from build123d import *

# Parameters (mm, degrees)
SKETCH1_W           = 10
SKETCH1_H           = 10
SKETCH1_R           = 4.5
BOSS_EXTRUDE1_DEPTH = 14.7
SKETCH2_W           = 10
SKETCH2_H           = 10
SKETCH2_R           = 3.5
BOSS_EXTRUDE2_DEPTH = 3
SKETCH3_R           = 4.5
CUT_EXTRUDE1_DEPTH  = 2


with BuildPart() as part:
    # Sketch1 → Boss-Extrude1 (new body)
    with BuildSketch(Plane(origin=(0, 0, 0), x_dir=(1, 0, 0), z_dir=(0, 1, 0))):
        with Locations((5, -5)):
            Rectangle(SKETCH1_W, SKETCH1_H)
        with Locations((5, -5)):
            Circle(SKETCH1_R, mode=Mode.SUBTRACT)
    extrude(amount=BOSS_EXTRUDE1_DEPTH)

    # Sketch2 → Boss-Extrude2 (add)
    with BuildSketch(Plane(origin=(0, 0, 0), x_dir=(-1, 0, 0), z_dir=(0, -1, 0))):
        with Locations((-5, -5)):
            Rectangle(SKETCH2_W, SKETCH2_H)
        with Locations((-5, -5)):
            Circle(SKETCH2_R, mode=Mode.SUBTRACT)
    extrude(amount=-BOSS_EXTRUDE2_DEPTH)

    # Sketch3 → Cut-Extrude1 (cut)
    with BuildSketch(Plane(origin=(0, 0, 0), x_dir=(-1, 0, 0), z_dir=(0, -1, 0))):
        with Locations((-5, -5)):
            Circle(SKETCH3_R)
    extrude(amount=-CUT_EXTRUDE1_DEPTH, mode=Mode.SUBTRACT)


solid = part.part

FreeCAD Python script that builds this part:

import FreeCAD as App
import Part
import Sketcher

V = App.Vector


def add_polygon(sketch, points):
    """Adds a closed chain of lines whose ends are joined by coincident constraints."""
    first, n = sketch.GeometryCount, len(points)
    for a, b in zip(points, points[1:] + points[:1]):
        sketch.addGeometry(Part.LineSegment(App.Vector(*a, 0), App.Vector(*b, 0)), False)
    for i in range(n):
        sketch.addConstraint(Sketcher.Constraint("Coincident", first + i, 2, first + (i + 1) % n, 1))

doc = App.newDocument("Part")
params = doc.addObject("Spreadsheet::Sheet", "Params")
for row, (alias, value) in enumerate([
    ("sketch1_diameter", "9 mm"),
    ("sketch1_width", "10 mm"),
    ("pad1_length", "14.7 mm"),
    ("sketch2_diameter", "7 mm"),
    ("sketch2_width", "10 mm"),
    ("pad2_length", "3 mm"),
    ("sketch3_diameter", "9 mm"),
    ("pocket1_length", "2 mm"),
], start=1):
    params.set(f"A{row}", alias)
    params.set(f"B{row}", "=" + value)
    params.setAlias(f"B{row}", alias)

body = doc.addObject("PartDesign::Body", "Body")

# Sketch on XZ plane
sketch1 = doc.addObject("Sketcher::SketchObject", "Sketch")
body.addObject(sketch1)
sketch1.AttachmentSupport = (doc.XZ_Plane, [""])
sketch1.MapMode = "FlatFace"
add_polygon(sketch1, [(0, 0), (0, 10), (10, 10), (10, 0)])  # lines 0-3
sketch1.addGeometry(Part.Circle(V(5, 5, 0), V(0, 0, 1), 4.5), False)  # 4
sketch1.addConstraint([
    Sketcher.Constraint("Vertical", 0),
    Sketcher.Constraint("Horizontal", 1),
    Sketcher.Constraint("Vertical", 2),
    Sketcher.Constraint("Horizontal", 3),
    Sketcher.Constraint("Coincident", 3, 2, -1, 1),
    Sketcher.Constraint("Equal", 3, 0),
    Sketcher.Constraint("Diameter", 4, 9.0),
    Sketcher.Constraint("DistanceX", 1, 1, 1, 2, 10.0),
    Sketcher.Constraint("DistanceX", -1, 1, 4, 3, 5.0),
    Sketcher.Constraint("DistanceY", -1, 1, 4, 3, 5.0),
])
sketch1.setExpression("Constraints[10]", "Params.sketch1_diameter")
sketch1.setExpression("Constraints[11]", "Params.sketch1_width")
pad1 = doc.addObject("PartDesign::Pad", "Pad")
body.addObject(pad1)
pad1.Profile = sketch1
pad1.setExpression("Length", "Params.pad1_length")
pad1.Reversed = True

# Sketch on XZ plane
sketch2 = doc.addObject("Sketcher::SketchObject", "Sketch001")
body.addObject(sketch2)
sketch2.AttachmentSupport = (doc.XZ_Plane, [""])
sketch2.MapMode = "FlatFace"
add_polygon(sketch2, [(10, 0), (10, 10), (0, 10), (0, 0)])  # lines 0-3
sketch2.addGeometry(Part.Circle(V(5, 5, 0), V(0, 0, 1), 3.5), False)  # 4
sketch2.addConstraint([
    Sketcher.Constraint("Vertical", 0),
    Sketcher.Constraint("Horizontal", 1),
    Sketcher.Constraint("Vertical", 2),
    Sketcher.Constraint("Horizontal", 3),
    Sketcher.Constraint("Coincident", 2, 2, -1, 1),
    Sketcher.Constraint("Equal", 3, 0),
    Sketcher.Constraint("Diameter", 4, 7.0),
    Sketcher.Constraint("DistanceX", 1, 2, 1, 1, 10.0),
    Sketcher.Constraint("DistanceX", -1, 1, 4, 3, 5.0),
    Sketcher.Constraint("DistanceY", -1, 1, 4, 3, 5.0),
])
sketch2.setExpression("Constraints[10]", "Params.sketch2_diameter")
sketch2.setExpression("Constraints[11]", "Params.sketch2_width")
pad2 = doc.addObject("PartDesign::Pad", "Pad001")
body.addObject(pad2)
pad2.Profile = sketch2
pad2.setExpression("Length", "Params.pad2_length")
pad2.Reversed = True

# Sketch on XZ plane
sketch3 = doc.addObject("Sketcher::SketchObject", "Sketch002")
body.addObject(sketch3)
sketch3.AttachmentSupport = (doc.XZ_Plane, [""])
sketch3.MapMode = "FlatFace"
sketch3.addGeometry(Part.Circle(V(5, 5, 0), V(0, 0, 1), 4.5), False)
sketch3.addConstraint([
    Sketcher.Constraint("Diameter", 0, 9.0),
    Sketcher.Constraint("DistanceX", -1, 1, 0, 3, 5.0),
    Sketcher.Constraint("DistanceY", -1, 1, 0, 3, 5.0),
])
sketch3.setExpression("Constraints[0]", "Params.sketch3_diameter")
pocket1 = doc.addObject("PartDesign::Pocket", "Pocket")
body.addObject(pocket1)
pocket1.Profile = sketch3
pocket1.setExpression("Length", "Params.pocket1_length")

doc.recompute()
